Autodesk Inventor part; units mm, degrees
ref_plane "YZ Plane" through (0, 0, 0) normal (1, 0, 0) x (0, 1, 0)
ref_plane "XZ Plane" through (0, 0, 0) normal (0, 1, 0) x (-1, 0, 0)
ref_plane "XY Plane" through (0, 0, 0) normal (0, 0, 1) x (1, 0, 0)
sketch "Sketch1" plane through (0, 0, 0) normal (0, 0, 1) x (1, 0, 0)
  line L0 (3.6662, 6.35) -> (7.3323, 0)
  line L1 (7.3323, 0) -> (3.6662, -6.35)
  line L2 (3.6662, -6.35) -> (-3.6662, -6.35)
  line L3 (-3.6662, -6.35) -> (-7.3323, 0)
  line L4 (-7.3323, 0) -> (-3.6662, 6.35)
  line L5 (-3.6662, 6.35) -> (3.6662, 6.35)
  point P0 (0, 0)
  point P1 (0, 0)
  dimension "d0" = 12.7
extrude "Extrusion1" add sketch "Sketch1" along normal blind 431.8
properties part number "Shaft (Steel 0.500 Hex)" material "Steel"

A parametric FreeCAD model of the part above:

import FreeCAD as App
import Part
import Sketcher
from FreeCAD import Vector
Q = App.Units.Quantity

doc = App.newDocument("Part")
body = doc.addObject("PartDesign::Body", "Body")

# Sketch on XY plane
sketch1 = doc.addObject("Sketcher::SketchObject", "Sketch")
body.addObject(sketch1)
sketch1.AttachmentSupport = (doc.XY_Plane, [""])
sketch1.MapMode = "FlatFace"
sketch1.addGeometry([
    Part.LineSegment(Vector(7.3323, 0, 0), Vector(3.6662, 6.35, 0)),  # 0
    Part.LineSegment(Vector(3.6662, 6.35, 0), Vector(-3.6662, 6.35, 0)),  # 1
    Part.LineSegment(Vector(-3.6662, 6.35, 0), Vector(-7.3323, 0, 0)),  # 2
    Part.LineSegment(Vector(-7.3323, 0, 0), Vector(-3.6662, -6.35, 0)),  # 3
    Part.LineSegment(Vector(-3.6662, -6.35, 0), Vector(3.6662, -6.35, 0)),  # 4
    Part.LineSegment(Vector(3.6662, -6.35, 0), Vector(7.3323, 0, 0)),  # 5
], False)
sketch1.addConstraint([
    Sketcher.Constraint("Coincident", 0, 2, 1, 1),
    Sketcher.Constraint("Coincident", 1, 2, 2, 1),
    Sketcher.Constraint("Coincident", 2, 2, 3, 1),
    Sketcher.Constraint("Coincident", 3, 2, 4, 1),
    Sketcher.Constraint("Coincident", 4, 2, 5, 1),
    Sketcher.Constraint("Coincident", 5, 2, 0, 1),
    Sketcher.Constraint("Horizontal", 1),
    Sketcher.Constraint("Horizontal", 4),
    Sketcher.Constraint("Symmetric", 0, 2, 3, 2, -1, 1),
    Sketcher.Constraint("Symmetric", 2, 2, 5, 2, -1, 1),
    Sketcher.Constraint("PointOnObject", 2, 2, -1),
    Sketcher.Constraint("Parallel", 2, 5),
    Sketcher.Constraint("Vertical", 1, 2, 3, 2),
    Sketcher.Constraint("DistanceY", 3, 2, 1, 2, Q("0.5 in")),
    Sketcher.Constraint("Angle", 0, Q("119.9995 deg")),
    Sketcher.Constraint("DistanceX", 2, 2, 0, 2, Q("0.433 in")),
])
pad1 = doc.addObject("PartDesign::Pad", "Pad")
body.addObject(pad1)
pad1.Profile = sketch1
pad1.Length = Q("17 in")

doc.recompute()
